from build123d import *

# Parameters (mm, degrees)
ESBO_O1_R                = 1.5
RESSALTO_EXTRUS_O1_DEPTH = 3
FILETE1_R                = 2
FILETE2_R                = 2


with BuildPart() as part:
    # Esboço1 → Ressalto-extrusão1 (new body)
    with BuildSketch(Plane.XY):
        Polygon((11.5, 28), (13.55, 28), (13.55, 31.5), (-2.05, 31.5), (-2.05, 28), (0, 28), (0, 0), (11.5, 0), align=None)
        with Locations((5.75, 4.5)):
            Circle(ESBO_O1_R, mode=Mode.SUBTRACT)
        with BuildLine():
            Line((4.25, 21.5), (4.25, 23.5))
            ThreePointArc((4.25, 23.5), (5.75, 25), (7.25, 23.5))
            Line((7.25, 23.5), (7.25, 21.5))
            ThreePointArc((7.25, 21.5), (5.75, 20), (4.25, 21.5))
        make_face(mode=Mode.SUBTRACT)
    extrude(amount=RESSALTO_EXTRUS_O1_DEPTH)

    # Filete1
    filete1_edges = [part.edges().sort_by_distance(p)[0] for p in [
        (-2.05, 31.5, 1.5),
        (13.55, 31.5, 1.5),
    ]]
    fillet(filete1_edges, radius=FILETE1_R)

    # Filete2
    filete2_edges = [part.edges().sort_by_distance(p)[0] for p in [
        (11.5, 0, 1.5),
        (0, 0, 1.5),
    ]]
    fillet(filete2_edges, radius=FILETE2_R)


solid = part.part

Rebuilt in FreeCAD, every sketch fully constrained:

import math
import FreeCAD as App
import Part
import Sketcher

V = App.Vector


def edges_at(feature, points):
    """Names of the edges that pass closest to the given points."""
    edges = feature.Shape.Edges
    near = lambda p: min(range(len(edges)), key=lambda i: edges[i].distToShape(Part.Vertex(*p))[0])
    return sorted({f"Edge{near(p) + 1}" for p in points})


def add_polygon(sketch, points):
    """Adds a closed chain of lines whose ends are joined by coincident constraints."""
    first, n = sketch.GeometryCount, len(points)
    for a, b in zip(points, points[1:] + points[:1]):
        sketch.addGeometry(Part.LineSegment(App.Vector(*a, 0), App.Vector(*b, 0)), False)
    for i in range(n):
        sketch.addConstraint(Sketcher.Constraint("Coincident", first + i, 2, first + (i + 1) % n, 1))

doc = App.newDocument("Part")
params = doc.addObject("Spreadsheet::Sheet", "Params")
for row, (alias, value) in enumerate([
    ("sketch1_diameter", "3 mm"),
    ("sketch1_height", "28 mm"),
    ("sketch1_height2", "2 mm"),
    ("sketch1_width", "15.6 mm"),
    ("sketch1_width2", "11.5 mm"),
    ("pad1_length", "3 mm"),
    ("fillet_radius", "2 mm"),
    ("fillet2_radius", "2 mm"),
], start=1):
    params.set(f"A{row}", alias)
    params.set(f"B{row}", "=" + value)
    params.setAlias(f"B{row}", alias)

body = doc.addObject("PartDesign::Body", "Body")

# Sketch on XY plane
sketch1 = body.newObject("Sketcher::SketchObject", "Sketch")
sketch1.AttachmentSupport = (doc.getObject("XY_Plane"), [""])
sketch1.MapMode = "FlatFace"
add_polygon(sketch1, [(11.5, 28), (13.6, 28), (13.6, 31.5), (-2, 31.5), (-2, 28), (0, 28), (0, 0), (11.5, 0)])  # lines 0-7
sketch1.addGeometry(Part.Circle(V(5.8, 4.5, 0), V(0, 0, 1), 1.5), False)  # 8
sketch1.addGeometry(Part.ArcOfCircle(Part.Circle(V(5.8, 21.5, 0), V(0, 0, 1), 1.5), math.radians(180), math.radians(360)), False)  # 9
sketch1.addGeometry(Part.LineSegment(V(4.2, 21.5, 0), V(4.2, 23.5, 0)), False)  # 10
sketch1.addGeometry(Part.ArcOfCircle(Part.Circle(V(5.8, 23.5, 0), V(0, 0, 1), 1.5), math.radians(0), math.radians(180)), False)  # 11
sketch1.addGeometry(Part.LineSegment(V(7.2, 23.5, 0), V(7.2, 21.5, 0)), False)  # 12
sketch1.addConstraint([
    Sketcher.Constraint("Tangent", 9, 1, 10, 1),
    Sketcher.Constraint("Tangent", 10, 2, 11, 2),
    Sketcher.Constraint("Tangent", 11, 1, 12, 1),
    Sketcher.Constraint("Tangent", 12, 2, 9, 2),
    Sketcher.Constraint("Horizontal", 0),
    Sketcher.Constraint("Vertical", 1),
    Sketcher.Constraint("Horizontal", 2),
    Sketcher.Constraint("Vertical", 3),
    Sketcher.Constraint("Horizontal", 4),
    Sketcher.Constraint("Vertical", 5),
    Sketcher.Constraint("Horizontal", 6),
    Sketcher.Constraint("Vertical", 7),
    Sketcher.Constraint("Vertical", 10),
    Sketcher.Constraint("Vertical", 12),
    Sketcher.Constraint("Coincident", 5, 2, -1, 1),
    Sketcher.Constraint("Equal", 8, 9),
    Sketcher.Constraint("Horizontal", 0, 2, 3, 2),
    Sketcher.Constraint("Vertical", 8, 3, 9, 3),
    Sketcher.Constraint("Equal", 0, 4),
    Sketcher.Constraint("Diameter", 8, 3.0),
    Sketcher.Constraint("DistanceY", 5, 2, 5, 1, 28.0),
    Sketcher.Constraint("DistanceY", 10, 1, 10, 2, 2.0),
    Sketcher.Constraint("DistanceX", 2, 2, 2, 1, 15.6),
    Sketcher.Constraint("DistanceX", 6, 1, 6, 2, 11.5),
    Sketcher.Constraint("DistanceY", 1, 1, 1, 2, 3.5),
    Sketcher.Constraint("DistanceY", 8, 3, 9, 3, 17.0),
    Sketcher.Constraint("DistanceY", 11, 3, 1, 2, 8.0),
    Sketcher.Constraint("DistanceX", 11, 3, 0, 2, 7.8),
])
sketch1.setExpression("Constraints[27]", "Params.sketch1_diameter")
sketch1.setExpression("Constraints[28]", "Params.sketch1_height")
sketch1.setExpression("Constraints[29]", "Params.sketch1_height2")
sketch1.setExpression("Constraints[30]", "Params.sketch1_width")
sketch1.setExpression("Constraints[31]", "Params.sketch1_width2")
pad1 = body.newObject("PartDesign::Pad", "Pad")
pad1.Profile = sketch1
pad1.setExpression("Length", "Params.pad1_length")
doc.recompute()

fillet = body.newObject("PartDesign::Fillet", "Fillet")
fillet.Base = (pad1, edges_at(pad1, [(-2.05, 31.5, 1.5), (13.55, 31.5, 1.5)]))
fillet.setExpression("Radius", "Params.fillet_radius")
doc.recompute()

fillet2 = body.newObject("PartDesign::Fillet", "Fillet001")
fillet2.Base = (fillet, edges_at(fillet, [(11.5, 0, 1.5), (0, 0, 1.5)]))
fillet2.setExpression("Radius", "Params.fillet2_radius")

doc.recompute()
